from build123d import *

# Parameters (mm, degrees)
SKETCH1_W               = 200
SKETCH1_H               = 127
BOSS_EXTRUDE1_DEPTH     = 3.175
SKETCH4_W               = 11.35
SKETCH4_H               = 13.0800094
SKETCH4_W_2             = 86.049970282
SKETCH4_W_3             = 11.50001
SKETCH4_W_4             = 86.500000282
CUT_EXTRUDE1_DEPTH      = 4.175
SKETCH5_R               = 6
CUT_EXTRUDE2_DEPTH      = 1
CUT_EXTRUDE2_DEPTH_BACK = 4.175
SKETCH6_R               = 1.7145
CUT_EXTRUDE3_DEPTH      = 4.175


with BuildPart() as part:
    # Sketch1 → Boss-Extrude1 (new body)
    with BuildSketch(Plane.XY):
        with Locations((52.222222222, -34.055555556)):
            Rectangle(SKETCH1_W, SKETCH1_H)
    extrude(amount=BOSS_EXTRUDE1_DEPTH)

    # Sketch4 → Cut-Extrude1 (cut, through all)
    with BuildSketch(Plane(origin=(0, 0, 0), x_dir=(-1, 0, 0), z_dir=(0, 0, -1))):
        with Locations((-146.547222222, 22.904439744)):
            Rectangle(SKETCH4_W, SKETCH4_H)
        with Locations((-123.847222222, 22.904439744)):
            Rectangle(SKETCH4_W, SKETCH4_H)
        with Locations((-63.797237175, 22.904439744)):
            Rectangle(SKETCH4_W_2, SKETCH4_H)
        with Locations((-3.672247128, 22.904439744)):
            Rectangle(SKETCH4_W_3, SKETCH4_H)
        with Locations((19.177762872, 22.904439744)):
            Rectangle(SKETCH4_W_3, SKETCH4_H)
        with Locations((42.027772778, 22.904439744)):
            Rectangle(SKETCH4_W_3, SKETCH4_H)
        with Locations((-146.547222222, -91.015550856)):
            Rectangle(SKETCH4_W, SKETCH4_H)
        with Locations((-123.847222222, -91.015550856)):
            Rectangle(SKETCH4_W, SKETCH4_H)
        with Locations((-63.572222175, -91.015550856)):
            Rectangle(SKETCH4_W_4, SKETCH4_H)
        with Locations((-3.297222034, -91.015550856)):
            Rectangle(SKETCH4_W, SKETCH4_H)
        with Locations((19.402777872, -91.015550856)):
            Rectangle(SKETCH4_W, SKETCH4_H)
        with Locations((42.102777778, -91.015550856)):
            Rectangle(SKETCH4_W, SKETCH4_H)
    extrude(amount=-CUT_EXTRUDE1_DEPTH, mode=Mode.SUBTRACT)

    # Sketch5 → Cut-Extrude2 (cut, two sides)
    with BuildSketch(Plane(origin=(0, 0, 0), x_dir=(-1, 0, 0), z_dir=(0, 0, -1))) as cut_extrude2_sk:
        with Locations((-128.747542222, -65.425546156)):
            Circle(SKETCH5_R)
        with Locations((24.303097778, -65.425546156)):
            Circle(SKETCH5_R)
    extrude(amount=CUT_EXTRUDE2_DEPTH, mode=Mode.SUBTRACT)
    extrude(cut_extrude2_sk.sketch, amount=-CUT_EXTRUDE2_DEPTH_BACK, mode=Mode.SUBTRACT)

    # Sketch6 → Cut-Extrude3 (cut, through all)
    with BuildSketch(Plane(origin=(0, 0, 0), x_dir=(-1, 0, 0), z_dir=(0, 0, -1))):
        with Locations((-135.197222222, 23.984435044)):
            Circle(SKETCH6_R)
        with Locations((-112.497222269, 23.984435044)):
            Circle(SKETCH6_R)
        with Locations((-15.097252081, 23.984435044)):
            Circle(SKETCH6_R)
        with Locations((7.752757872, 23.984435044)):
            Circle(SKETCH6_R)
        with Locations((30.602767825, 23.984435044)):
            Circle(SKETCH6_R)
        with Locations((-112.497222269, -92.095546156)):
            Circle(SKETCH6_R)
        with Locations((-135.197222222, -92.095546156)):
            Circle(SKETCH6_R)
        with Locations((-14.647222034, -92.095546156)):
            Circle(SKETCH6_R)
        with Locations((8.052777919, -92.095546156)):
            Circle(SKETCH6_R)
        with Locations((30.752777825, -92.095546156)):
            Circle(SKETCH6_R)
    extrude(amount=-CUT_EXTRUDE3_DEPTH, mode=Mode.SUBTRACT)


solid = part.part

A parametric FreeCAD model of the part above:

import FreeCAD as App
import Part
import Sketcher

V = App.Vector


def add_polygon(sketch, points):
    """Adds a closed chain of lines whose ends are joined by coincident constraints."""
    first, n = sketch.GeometryCount, len(points)
    for a, b in zip(points, points[1:] + points[:1]):
        sketch.addGeometry(Part.LineSegment(App.Vector(*a, 0), App.Vector(*b, 0)), False)
    for i in range(n):
        sketch.addConstraint(Sketcher.Constraint("Coincident", first + i, 2, first + (i + 1) % n, 1))

doc = App.newDocument("Part")
body = doc.addObject("PartDesign::Body", "Body")

# Sketch on XY plane
sketch1 = body.newObject("Sketcher::SketchObject", "Sketch")
sketch1.AttachmentSupport = (doc.getObject("XY_Plane"), [""])
sketch1.MapMode = "FlatFace"
add_polygon(sketch1, [(-47.777778, 29.444444), (-47.777778, -97.555556), (152.222222, -97.555556), (152.222222, 29.444444)])  # lines 0-3
sketch1.addConstraint([
    Sketcher.Constraint("Vertical", 0),
    Sketcher.Constraint("Horizontal", 1),
    Sketcher.Constraint("Vertical", 2),
    Sketcher.Constraint("Horizontal", 3),
    Sketcher.Constraint("DistanceX", 1, 1, 1, 2, 200.0),
    Sketcher.Constraint("DistanceY", 0, 2, 0, 1, 127.0),
    Sketcher.Constraint("DistanceX", 0, 2, -1, 1, 47.777778),
    Sketcher.Constraint("DistanceY", 0, 2, -1, 1, 97.555556),
])
pad1 = body.newObject("PartDesign::Pad", "Pad")
pad1.Profile = sketch1
pad1.Length = 3.175

# Sketch on XY plane
sketch2 = body.newObject("Sketcher::SketchObject", "Sketch001")
sketch2.AttachmentSupport = (doc.getObject("XY_Plane"), [""])
sketch2.MapMode = "FlatFace"
add_polygon(sketch2, [(152.222222, 29.444444), (152.222222, 16.364435), (140.872222, 16.364435), (140.872222, 29.444444)])  # lines 0-3
add_polygon(sketch2, [(129.522222, 29.444444), (129.522222, 16.364435), (118.172222, 16.364435), (118.172222, 29.444444)])  # lines 4-7
add_polygon(sketch2, [(106.822222, 29.444444), (106.822222, 16.364435), (20.772252, 16.364435), (20.772252, 29.444444)])  # lines 8-11
add_polygon(sketch2, [(9.422252, 29.444444), (9.422252, 16.364435), (-2.077758, 16.364435), (-2.077758, 29.444444)])  # lines 12-15
add_polygon(sketch2, [(-13.427758, 29.444444), (-13.427758, 16.364435), (-24.927768, 16.364435), (-24.927768, 29.444444)])  # lines 16-19
add_polygon(sketch2, [(-36.277768, 29.444444), (-36.277768, 16.364435), (-47.777778, 16.364435), (-47.777778, 29.444444)])  # lines 20-23
add_polygon(sketch2, [(152.222222, -84.475546), (152.222222, -97.555556), (140.872222, -97.555556), (140.872222, -84.475546)])  # lines 24-27
add_polygon(sketch2, [(129.522222, -84.475546), (129.522222, -97.555556), (118.172222, -97.555556), (118.172222, -84.475546)])  # lines 28-31
add_polygon(sketch2, [(106.822222, -84.475546), (106.822222, -97.555556), (20.322222, -97.555556), (20.322222, -84.475546)])  # lines 32-35
add_polygon(sketch2, [(8.972222, -84.475546), (8.972222, -97.555556), (-2.377778, -97.555556), (-2.377778, -84.475546)])  # lines 36-39
add_polygon(sketch2, [(-13.727778, -84.475546), (-13.727778, -97.555556), (-25.077778, -97.555556), (-25.077778, -84.475546)])  # lines 40-43
add_polygon(sketch2, [(-36.427778, -84.475546), (-36.427778, -97.555556), (-47.777778, -97.555556), (-47.777778, -84.475546)])  # lines 44-47
sketch2.addConstraint([
    Sketcher.Constraint("Vertical", 0),
    Sketcher.Constraint("Horizontal", 1),
    Sketcher.Constraint("Vertical", 2),
    Sketcher.Constraint("Horizontal", 3),
    Sketcher.Constraint("Vertical", 4),
    Sketcher.Constraint("Horizontal", 5),
    Sketcher.Constraint("Vertical", 6),
    Sketcher.Constraint("Horizontal", 7),
    Sketcher.Constraint("Vertical", 8),
    Sketcher.Constraint("Horizontal", 9),
    Sketcher.Constraint("Vertical", 10),
    Sketcher.Constraint("Horizontal", 11),
    Sketcher.Constraint("Vertical", 12),
    Sketcher.Constraint("Horizontal", 13),
    Sketcher.Constraint("Vertical", 14),
    Sketcher.Constraint("Horizontal", 15),
    Sketcher.Constraint("Vertical", 16),
    Sketcher.Constraint("Horizontal", 17),
    Sketcher.Constraint("Vertical", 18),
    Sketcher.Constraint("Horizontal", 19),
    Sketcher.Constraint("Vertical", 20),
    Sketcher.Constraint("Horizontal", 21),
    Sketcher.Constraint("Vertical", 22),
    Sketcher.Constraint("Horizontal", 23),
    Sketcher.Constraint("Vertical", 24),
    Sketcher.Constraint("Horizontal", 25),
    Sketcher.Constraint("Vertical", 26),
    Sketcher.Constraint("Horizontal", 27),
    Sketcher.Constraint("Vertical", 28),
    Sketcher.Constraint("Horizontal", 29),
    Sketcher.Constraint("Vertical", 30),
    Sketcher.Constraint("Horizontal", 31),
    Sketcher.Constraint("Vertical", 32),
    Sketcher.Constraint("Horizontal", 33),
    Sketcher.Constraint("Vertical", 34),
    Sketcher.Constraint("Horizontal", 35),
    Sketcher.Constraint("Vertical", 36),
    Sketcher.Constraint("Horizontal", 37),
    Sketcher.Constraint("Vertical", 38),
    Sketcher.Constraint("Horizontal", 39),
    Sketcher.Constraint("Vertical", 40),
    Sketcher.Constraint("Horizontal", 41),
    Sketcher.Constraint("Vertical", 42),
    Sketcher.Constraint("Horizontal", 43),
    Sketcher.Constraint("Vertical", 44),
    Sketcher.Constraint("Horizontal", 45),
    Sketcher.Constraint("Vertical", 46),
    Sketcher.Constraint("Horizontal", 47),
    Sketcher.Constraint("Horizontal", 1, 2, 4, 2),
    Sketcher.Constraint("Horizontal", 3, 2, 6, 2),
    Sketcher.Constraint("Horizontal", 5, 2, 8, 2),
    Sketcher.Constraint("Horizontal", 7, 2, 10, 2),
    Sketcher.Constraint("Horizontal", 9, 2, 12, 2),
    Sketcher.Constraint("Horizontal", 11, 2, 14, 2),
    Sketcher.Constraint("Horizontal", 13, 2, 16, 2),
    Sketcher.Constraint("Horizontal", 15, 2, 18, 2),
    Sketcher.Constraint("Horizontal", 17, 2, 20, 2),
    Sketcher.Constraint("Horizontal", 19, 2, 22, 2),
    Sketcher.Constraint("Horizontal", 25, 2, 28, 2),
    Sketcher.Constraint("Horizontal", 27, 2, 30, 2),
    Sketcher.Constraint("Horizontal", 29, 2, 32, 2),
    Sketcher.Constraint("Horizontal", 31, 2, 34, 2),
    Sketcher.Constraint("Horizontal", 33, 2, 36, 2),
    Sketcher.Constraint("Horizontal", 35, 2, 38, 2),
    Sketcher.Constraint("Horizontal", 37, 2, 40, 2),
    Sketcher.Constraint("Horizontal", 39, 2, 42, 2),
    Sketcher.Constraint("Horizontal", 41, 2, 44, 2),
    Sketcher.Constraint("Horizontal", 43, 2, 46, 2),
    Sketcher.Constraint("Vertical", 3, 2, 24, 2),
    Sketcher.Constraint("Vertical", 2, 2, 25, 2),
    Sketcher.Constraint("Vertical", 7, 2, 28, 2),
    Sketcher.Constraint("Vertical", 6, 2, 29, 2),
    Sketcher.Constraint("Vertical", 11, 2, 32, 2),
    Sketcher.Constraint("Vertical", 22, 2, 45, 2),
    Sketcher.Constraint("Equal", 3, 5),
    Sketcher.Constraint("Equal", 15, 17),
    Sketcher.Constraint("Equal", 19, 21),
    Sketcher.Constraint("Equal", 31, 37),
    Sketcher.Constraint("Equal", 39, 41),
    Sketcher.Constraint("Equal", 43, 45),
    Sketcher.Constraint("Equal", 22, 24),
    Sketcher.Constraint("DistanceX", 33, 2, 33, 1, 86.5),
    Sketcher.Constraint("DistanceX", 1, 2, 1, 1, 11.35),
    Sketcher.Constraint("DistanceX", 4, 2, 0, 2, 22.7),
    Sketcher.Constraint("DistanceX", 8, 2, 4, 2, 22.7),
    Sketcher.Constraint("DistanceX", 36, 2, 29, 2, 109.2),
    Sketcher.Constraint("DistanceX", 40, 2, 36, 2, 22.7),
    Sketcher.Constraint("DistanceX", 44, 2, 40, 2, 22.7),
    Sketcher.Constraint("DistanceX", 12, 2, 9, 2, 11.35),
    Sketcher.Constraint("DistanceX", 16, 2, 13, 2, 11.35),
    Sketcher.Constraint("DistanceX", 20, 2, 17, 2, 11.35),
    Sketcher.Constraint("DistanceX", 9, 2, 9, 1, 86.04997),
    Sketcher.Constraint("DistanceY", 0, 2, 0, 1, 13.080009),
    Sketcher.Constraint("DistanceY", 24, 2, 0, 2, 113.919991),
    Sketcher.Constraint("DistanceX", -1, 1, 0, 2, 152.222222),
    Sketcher.Constraint("DistanceY", -1, 1, 0, 2, 16.364435),
])
pocket1 = body.newObject("PartDesign::Pocket", "Pocket")
pocket1.Profile = sketch2
pocket1.Type = "ThroughAll"
pocket1.Reversed = True

# Sketch on XY plane
sketch3 = body.newObject("Sketcher::SketchObject", "Sketch002")
sketch3.AttachmentSupport = (doc.getObject("XY_Plane"), [""])
sketch3.MapMode = "FlatFace"
sketch3.addGeometry([
    Part.Circle(V(128.747542, -65.425546, 0), V(0, 0, 1), 6),
    Part.Circle(V(-24.303098, -65.425546, 0), V(0, 0, 1), 6),
], False)
sketch3.addConstraint([
    Sketcher.Constraint("Equal", 0, 1),
    Sketcher.Constraint("Horizontal", 0, 3, 1, 3),
    Sketcher.Constraint("Diameter", 0, 12.0),
    Sketcher.Constraint("DistanceX", 1, 3, 0, 3, 153.05064),
    Sketcher.Constraint("DistanceX", -1, 1, 0, 3, 128.747542),
    Sketcher.Constraint("DistanceY", 0, 3, -1, 1, 65.425546),
])
pocket2 = body.newObject("PartDesign::Pocket", "Pocket001")
pocket2.Profile = sketch3
pocket2.Type = "ThroughAll"
pocket2.Midplane = True

# Sketch on XY plane
sketch4 = body.newObject("Sketcher::SketchObject", "Sketch003")
sketch4.AttachmentSupport = (doc.getObject("XY_Plane"), [""])
sketch4.MapMode = "FlatFace"
sketch4.addGeometry([
    Part.Circle(V(135.197222, 23.984435, 0), V(0, 0, 1), 1.7145),  # 0
    Part.Circle(V(112.497222, 23.984435, 0), V(0, 0, 1), 1.7145),  # 1
    Part.Circle(V(15.097252, 23.984435, 0), V(0, 0, 1), 1.7145),  # 2
    Part.Circle(V(-7.752758, 23.984435, 0), V(0, 0, 1), 1.7145),  # 3
    Part.Circle(V(-30.602768, 23.984435, 0), V(0, 0, 1), 1.7145),  # 4
    Part.Circle(V(112.497222, -92.095546, 0), V(0, 0, 1), 1.7145),  # 5
    Part.Circle(V(135.197222, -92.095546, 0), V(0, 0, 1), 1.7145),  # 6
    Part.Circle(V(14.647222, -92.095546, 0), V(0, 0, 1), 1.7145),  # 7
    Part.Circle(V(-8.052778, -92.095546, 0), V(0, 0, 1), 1.7145),  # 8
    Part.Circle(V(-30.752778, -92.095546, 0), V(0, 0, 1), 1.7145),  # 9
], False)
sketch4.addConstraint([
    Sketcher.Constraint("Equal", 0, 1),
    Sketcher.Constraint("Equal", 1, 2),
    Sketcher.Constraint("Equal", 2, 3),
    Sketcher.Constraint("Equal", 3, 4),
    Sketcher.Constraint("Equal", 4, 5),
    Sketcher.Constraint("Equal", 5, 6),
    Sketcher.Constraint("Equal", 6, 7),
    Sketcher.Constraint("Equal", 7, 8),
    Sketcher.Constraint("Equal", 8, 9),
    Sketcher.Constraint("Horizontal", 0, 3, 1, 3),
    Sketcher.Constraint("Horizontal", 1, 3, 2, 3),
    Sketcher.Constraint("Horizontal", 2, 3, 3, 3),
    Sketcher.Constraint("Horizontal", 3, 3, 4, 3),
    Sketcher.Constraint("Horizontal", 5, 3, 6, 3),
    Sketcher.Constraint("Horizontal", 6, 3, 7, 3),
    Sketcher.Constraint("Horizontal", 7, 3, 8, 3),
    Sketcher.Constraint("Horizontal", 8, 3, 9, 3),
    Sketcher.Constraint("Vertical", 1, 3, 5, 3),
    Sketcher.Constraint("Vertical", 0, 3, 6, 3),
    Sketcher.Constraint("Diameter", 0, 3.429),
    Sketcher.Constraint("DistanceX", 1, 3, 0, 3, 22.7),
    Sketcher.Constraint("DistanceX", 8, 3, 7, 3, 22.7),
    Sketcher.Constraint("DistanceX", 9, 3, 8, 3, 22.7),
    Sketcher.Constraint("DistanceX", 7, 3, 5, 3, 97.85),
    Sketcher.Constraint("DistanceX", 2, 3, 1, 3, 97.39997),
    Sketcher.Constraint("DistanceX", 3, 3, 2, 3, 22.85001),
    Sketcher.Constraint("DistanceX", 4, 3, 3, 3, 22.85001),
    Sketcher.Constraint("DistanceY", 5, 3, 1, 3, 116.079981),
    Sketcher.Constraint("DistanceX", -1, 1, 0, 3, 135.197222),
    Sketcher.Constraint("DistanceY", -1, 1, 0, 3, 23.984435),
])
pocket3 = body.newObject("PartDesign::Pocket", "Pocket002")
pocket3.Profile = sketch4
pocket3.Type = "ThroughAll"
pocket3.Reversed = True

doc.recompute()
